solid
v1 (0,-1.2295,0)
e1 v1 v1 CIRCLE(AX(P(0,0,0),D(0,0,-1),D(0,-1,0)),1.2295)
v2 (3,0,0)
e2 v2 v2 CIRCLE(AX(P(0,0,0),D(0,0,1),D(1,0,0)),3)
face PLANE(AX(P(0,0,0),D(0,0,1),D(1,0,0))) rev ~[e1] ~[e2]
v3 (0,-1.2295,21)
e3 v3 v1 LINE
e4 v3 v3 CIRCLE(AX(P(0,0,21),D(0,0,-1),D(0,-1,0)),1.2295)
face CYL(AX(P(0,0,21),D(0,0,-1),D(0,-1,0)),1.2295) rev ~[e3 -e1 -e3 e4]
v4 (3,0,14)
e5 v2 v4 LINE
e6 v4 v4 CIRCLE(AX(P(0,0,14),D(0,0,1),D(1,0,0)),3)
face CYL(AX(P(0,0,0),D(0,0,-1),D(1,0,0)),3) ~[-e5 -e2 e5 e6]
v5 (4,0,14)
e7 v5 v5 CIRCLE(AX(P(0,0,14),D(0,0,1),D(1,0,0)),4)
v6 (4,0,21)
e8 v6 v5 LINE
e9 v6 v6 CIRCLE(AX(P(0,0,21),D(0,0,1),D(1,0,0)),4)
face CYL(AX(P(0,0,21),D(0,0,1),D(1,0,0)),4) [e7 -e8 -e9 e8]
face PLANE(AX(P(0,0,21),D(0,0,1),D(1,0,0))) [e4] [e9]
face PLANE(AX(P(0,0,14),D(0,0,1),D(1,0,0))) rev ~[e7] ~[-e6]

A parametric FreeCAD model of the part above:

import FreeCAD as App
import Part
import Sketcher

V = App.Vector
Q = App.Units.Quantity

doc = App.newDocument("Part")
body = doc.addObject("PartDesign::Body", "Body")

sketch1 = body.newObject("Sketcher::SketchObject", "Sketch")
sketch1.AttachmentSupport = (doc.getObject("XY_Plane"), [""])
sketch1.MapMode = "FlatFace"
sketch1.addGeometry(Part.Circle(V(0, 0, 0), V(0, 0, 1), 3), False)
sketch1.addConstraint(Sketcher.Constraint("Coincident", 0, 3, -1, 1))
sketch1.addConstraint(Sketcher.Constraint("Diameter", 0, Q("6 mm")))
pad1 = body.newObject("PartDesign::Pad", "Pad")
pad1.Profile = sketch1
pad1.Length = 21

sketch2 = body.newObject("Sketcher::SketchObject", "Sketch001")
sketch2.AttachmentSupport = (doc.getObject("XY_Plane"), [""])
sketch2.MapMode = "FlatFace"
sketch2.AttachmentOffset = App.Placement(V(0, 0, 21), App.Rotation())
sketch2.addGeometry(Part.Circle(V(0, 0, 0), V(0, 0, 1), 1.2), False)
sketch2.addConstraint(Sketcher.Constraint("Coincident", 0, 3, -1, 1))
sketch2.addConstraint(Sketcher.Constraint("Diameter", 0, Q("2.459 mm")))
doc.recompute()
hole = body.newObject("PartDesign::Hole", "Hole")
hole.Profile = sketch2
hole.ThreadType = "None"
hole.Diameter = 2.459
hole.DepthType = "ThroughAll"

sketch3 = body.newObject("Sketcher::SketchObject", "Sketch002")
sketch3.AttachmentSupport = (doc.getObject("XY_Plane"), [""])
sketch3.MapMode = "FlatFace"
sketch3.AttachmentOffset = App.Placement(V(0, 0, 21), App.Rotation())
sketch3.addGeometry(Part.Circle(V(0, 0, 0), V(0, 0, 1), 4), False)
sketch3.addGeometry(Part.Circle(V(0, 0, 0), V(0, 0, 1), 3), False)
sketch3.addConstraint(Sketcher.Constraint("Coincident", 0, 3, -1, 1))
sketch3.addConstraint(Sketcher.Constraint("Coincident", 1, 3, -1, 1))
sketch3.addConstraint(Sketcher.Constraint("Diameter", 0, Q("8 mm")))
sketch3.addConstraint(Sketcher.Constraint("Diameter", 1, Q("6 mm")))
pad2 = body.newObject("PartDesign::Pad", "Pad001")
pad2.Profile = sketch3
pad2.Length = 7
pad2.Reversed = True

doc.recompute()
